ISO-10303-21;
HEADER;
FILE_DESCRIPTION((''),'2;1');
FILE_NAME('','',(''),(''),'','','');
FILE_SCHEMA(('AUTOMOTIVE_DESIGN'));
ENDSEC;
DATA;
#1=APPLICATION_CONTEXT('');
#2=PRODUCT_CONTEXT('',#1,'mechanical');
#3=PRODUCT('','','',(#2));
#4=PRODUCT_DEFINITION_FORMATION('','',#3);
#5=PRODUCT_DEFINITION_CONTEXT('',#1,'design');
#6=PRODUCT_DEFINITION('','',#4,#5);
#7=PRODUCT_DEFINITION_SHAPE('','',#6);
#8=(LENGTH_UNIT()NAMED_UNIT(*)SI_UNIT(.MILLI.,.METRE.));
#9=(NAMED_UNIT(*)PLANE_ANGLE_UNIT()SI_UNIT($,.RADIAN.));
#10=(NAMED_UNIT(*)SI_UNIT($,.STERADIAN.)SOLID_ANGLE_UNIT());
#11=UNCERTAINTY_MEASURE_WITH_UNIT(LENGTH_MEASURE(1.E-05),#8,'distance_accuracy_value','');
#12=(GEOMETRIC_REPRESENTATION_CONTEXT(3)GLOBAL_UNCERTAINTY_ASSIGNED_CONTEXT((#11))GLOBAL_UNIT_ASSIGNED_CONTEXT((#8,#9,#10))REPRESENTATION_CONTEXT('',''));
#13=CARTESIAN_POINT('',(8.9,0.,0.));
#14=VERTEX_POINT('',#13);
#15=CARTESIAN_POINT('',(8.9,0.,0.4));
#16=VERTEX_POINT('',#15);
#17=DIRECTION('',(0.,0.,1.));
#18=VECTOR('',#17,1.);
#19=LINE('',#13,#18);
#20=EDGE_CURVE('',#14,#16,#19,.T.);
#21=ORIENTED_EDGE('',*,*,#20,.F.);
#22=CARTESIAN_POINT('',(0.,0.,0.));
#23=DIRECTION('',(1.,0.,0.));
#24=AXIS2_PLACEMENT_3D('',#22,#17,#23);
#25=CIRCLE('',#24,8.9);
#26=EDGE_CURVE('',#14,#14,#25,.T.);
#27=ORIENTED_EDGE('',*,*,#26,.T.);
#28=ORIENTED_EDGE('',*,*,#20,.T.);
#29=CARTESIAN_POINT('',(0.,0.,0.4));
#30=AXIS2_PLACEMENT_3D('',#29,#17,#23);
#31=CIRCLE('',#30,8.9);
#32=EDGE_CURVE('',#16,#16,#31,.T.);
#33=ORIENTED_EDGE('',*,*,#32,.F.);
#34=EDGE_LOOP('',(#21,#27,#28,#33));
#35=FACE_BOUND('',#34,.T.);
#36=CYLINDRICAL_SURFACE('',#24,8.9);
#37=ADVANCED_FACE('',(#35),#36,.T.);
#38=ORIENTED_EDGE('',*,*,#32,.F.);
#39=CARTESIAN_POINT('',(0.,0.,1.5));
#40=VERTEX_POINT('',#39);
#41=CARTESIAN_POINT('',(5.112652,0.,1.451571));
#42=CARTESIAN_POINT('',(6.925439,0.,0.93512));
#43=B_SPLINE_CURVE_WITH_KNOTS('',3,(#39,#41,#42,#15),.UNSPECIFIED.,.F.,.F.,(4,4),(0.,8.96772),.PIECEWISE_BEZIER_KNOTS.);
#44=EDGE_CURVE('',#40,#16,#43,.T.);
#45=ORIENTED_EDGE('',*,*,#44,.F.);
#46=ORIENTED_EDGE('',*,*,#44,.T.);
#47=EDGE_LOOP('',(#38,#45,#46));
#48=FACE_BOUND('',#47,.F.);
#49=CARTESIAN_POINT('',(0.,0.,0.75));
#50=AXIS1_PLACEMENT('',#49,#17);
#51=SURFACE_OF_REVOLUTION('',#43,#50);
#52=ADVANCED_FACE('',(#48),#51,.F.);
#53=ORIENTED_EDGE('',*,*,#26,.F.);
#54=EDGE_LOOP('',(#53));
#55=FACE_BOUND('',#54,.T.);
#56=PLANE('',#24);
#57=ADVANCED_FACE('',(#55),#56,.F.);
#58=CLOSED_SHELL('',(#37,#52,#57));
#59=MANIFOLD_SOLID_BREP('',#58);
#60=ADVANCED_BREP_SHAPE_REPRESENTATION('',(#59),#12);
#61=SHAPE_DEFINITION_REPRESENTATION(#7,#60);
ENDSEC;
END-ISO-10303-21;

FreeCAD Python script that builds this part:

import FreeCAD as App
import Part
import Sketcher

V = App.Vector

doc = App.newDocument("Part")
body = doc.addObject("PartDesign::Body", "Body")

# Sketch on XZ plane
sketch1 = doc.addObject("Sketcher::SketchObject", "Sketch")
body.addObject(sketch1)
sketch1.AttachmentSupport = (doc.XZ_Plane, [""])
sketch1.MapMode = "FlatFace"
sketch1.addGeometry([
    Part.LineSegment(V(0, 0, 0), V(8.9, 0, 0)),
    Part.LineSegment(V(8.9, 0, 0), V(8.9, 0.4, 0)),
    Part.BSplineCurve([V(0, 1.5, 0), V(5.112652, 1.451571, 0), V(6.925439, 0.93512, 0), V(8.9, 0.4, 0)], [4, 4], [0, 8.96772], False, 3, [1, 1, 1, 1], False),
    Part.LineSegment(V(0, 1.5, 0), V(0, 0, 0)),
], False)
sketch1.addConstraint([
    Sketcher.Constraint("Block", 2),
    Sketcher.Constraint("Coincident", 0, 2, 1, 1),
    Sketcher.Constraint("Coincident", 1, 2, 2, 2),
    Sketcher.Constraint("Coincident", 2, 1, 3, 1),
    Sketcher.Constraint("Coincident", 3, 2, 0, 1),
    Sketcher.Constraint("Horizontal", 0),
    Sketcher.Constraint("Vertical", 1),
    Sketcher.Constraint("Vertical", 3),
    Sketcher.Constraint("PointOnObject", 0, 2, -1),
])
revolution = doc.addObject("PartDesign::Revolution", "Revolution")
body.addObject(revolution)
revolution.Profile = sketch1
revolution.ReferenceAxis = (sketch1, ["V_Axis"])
revolution.Angle = 360

doc.recompute()
